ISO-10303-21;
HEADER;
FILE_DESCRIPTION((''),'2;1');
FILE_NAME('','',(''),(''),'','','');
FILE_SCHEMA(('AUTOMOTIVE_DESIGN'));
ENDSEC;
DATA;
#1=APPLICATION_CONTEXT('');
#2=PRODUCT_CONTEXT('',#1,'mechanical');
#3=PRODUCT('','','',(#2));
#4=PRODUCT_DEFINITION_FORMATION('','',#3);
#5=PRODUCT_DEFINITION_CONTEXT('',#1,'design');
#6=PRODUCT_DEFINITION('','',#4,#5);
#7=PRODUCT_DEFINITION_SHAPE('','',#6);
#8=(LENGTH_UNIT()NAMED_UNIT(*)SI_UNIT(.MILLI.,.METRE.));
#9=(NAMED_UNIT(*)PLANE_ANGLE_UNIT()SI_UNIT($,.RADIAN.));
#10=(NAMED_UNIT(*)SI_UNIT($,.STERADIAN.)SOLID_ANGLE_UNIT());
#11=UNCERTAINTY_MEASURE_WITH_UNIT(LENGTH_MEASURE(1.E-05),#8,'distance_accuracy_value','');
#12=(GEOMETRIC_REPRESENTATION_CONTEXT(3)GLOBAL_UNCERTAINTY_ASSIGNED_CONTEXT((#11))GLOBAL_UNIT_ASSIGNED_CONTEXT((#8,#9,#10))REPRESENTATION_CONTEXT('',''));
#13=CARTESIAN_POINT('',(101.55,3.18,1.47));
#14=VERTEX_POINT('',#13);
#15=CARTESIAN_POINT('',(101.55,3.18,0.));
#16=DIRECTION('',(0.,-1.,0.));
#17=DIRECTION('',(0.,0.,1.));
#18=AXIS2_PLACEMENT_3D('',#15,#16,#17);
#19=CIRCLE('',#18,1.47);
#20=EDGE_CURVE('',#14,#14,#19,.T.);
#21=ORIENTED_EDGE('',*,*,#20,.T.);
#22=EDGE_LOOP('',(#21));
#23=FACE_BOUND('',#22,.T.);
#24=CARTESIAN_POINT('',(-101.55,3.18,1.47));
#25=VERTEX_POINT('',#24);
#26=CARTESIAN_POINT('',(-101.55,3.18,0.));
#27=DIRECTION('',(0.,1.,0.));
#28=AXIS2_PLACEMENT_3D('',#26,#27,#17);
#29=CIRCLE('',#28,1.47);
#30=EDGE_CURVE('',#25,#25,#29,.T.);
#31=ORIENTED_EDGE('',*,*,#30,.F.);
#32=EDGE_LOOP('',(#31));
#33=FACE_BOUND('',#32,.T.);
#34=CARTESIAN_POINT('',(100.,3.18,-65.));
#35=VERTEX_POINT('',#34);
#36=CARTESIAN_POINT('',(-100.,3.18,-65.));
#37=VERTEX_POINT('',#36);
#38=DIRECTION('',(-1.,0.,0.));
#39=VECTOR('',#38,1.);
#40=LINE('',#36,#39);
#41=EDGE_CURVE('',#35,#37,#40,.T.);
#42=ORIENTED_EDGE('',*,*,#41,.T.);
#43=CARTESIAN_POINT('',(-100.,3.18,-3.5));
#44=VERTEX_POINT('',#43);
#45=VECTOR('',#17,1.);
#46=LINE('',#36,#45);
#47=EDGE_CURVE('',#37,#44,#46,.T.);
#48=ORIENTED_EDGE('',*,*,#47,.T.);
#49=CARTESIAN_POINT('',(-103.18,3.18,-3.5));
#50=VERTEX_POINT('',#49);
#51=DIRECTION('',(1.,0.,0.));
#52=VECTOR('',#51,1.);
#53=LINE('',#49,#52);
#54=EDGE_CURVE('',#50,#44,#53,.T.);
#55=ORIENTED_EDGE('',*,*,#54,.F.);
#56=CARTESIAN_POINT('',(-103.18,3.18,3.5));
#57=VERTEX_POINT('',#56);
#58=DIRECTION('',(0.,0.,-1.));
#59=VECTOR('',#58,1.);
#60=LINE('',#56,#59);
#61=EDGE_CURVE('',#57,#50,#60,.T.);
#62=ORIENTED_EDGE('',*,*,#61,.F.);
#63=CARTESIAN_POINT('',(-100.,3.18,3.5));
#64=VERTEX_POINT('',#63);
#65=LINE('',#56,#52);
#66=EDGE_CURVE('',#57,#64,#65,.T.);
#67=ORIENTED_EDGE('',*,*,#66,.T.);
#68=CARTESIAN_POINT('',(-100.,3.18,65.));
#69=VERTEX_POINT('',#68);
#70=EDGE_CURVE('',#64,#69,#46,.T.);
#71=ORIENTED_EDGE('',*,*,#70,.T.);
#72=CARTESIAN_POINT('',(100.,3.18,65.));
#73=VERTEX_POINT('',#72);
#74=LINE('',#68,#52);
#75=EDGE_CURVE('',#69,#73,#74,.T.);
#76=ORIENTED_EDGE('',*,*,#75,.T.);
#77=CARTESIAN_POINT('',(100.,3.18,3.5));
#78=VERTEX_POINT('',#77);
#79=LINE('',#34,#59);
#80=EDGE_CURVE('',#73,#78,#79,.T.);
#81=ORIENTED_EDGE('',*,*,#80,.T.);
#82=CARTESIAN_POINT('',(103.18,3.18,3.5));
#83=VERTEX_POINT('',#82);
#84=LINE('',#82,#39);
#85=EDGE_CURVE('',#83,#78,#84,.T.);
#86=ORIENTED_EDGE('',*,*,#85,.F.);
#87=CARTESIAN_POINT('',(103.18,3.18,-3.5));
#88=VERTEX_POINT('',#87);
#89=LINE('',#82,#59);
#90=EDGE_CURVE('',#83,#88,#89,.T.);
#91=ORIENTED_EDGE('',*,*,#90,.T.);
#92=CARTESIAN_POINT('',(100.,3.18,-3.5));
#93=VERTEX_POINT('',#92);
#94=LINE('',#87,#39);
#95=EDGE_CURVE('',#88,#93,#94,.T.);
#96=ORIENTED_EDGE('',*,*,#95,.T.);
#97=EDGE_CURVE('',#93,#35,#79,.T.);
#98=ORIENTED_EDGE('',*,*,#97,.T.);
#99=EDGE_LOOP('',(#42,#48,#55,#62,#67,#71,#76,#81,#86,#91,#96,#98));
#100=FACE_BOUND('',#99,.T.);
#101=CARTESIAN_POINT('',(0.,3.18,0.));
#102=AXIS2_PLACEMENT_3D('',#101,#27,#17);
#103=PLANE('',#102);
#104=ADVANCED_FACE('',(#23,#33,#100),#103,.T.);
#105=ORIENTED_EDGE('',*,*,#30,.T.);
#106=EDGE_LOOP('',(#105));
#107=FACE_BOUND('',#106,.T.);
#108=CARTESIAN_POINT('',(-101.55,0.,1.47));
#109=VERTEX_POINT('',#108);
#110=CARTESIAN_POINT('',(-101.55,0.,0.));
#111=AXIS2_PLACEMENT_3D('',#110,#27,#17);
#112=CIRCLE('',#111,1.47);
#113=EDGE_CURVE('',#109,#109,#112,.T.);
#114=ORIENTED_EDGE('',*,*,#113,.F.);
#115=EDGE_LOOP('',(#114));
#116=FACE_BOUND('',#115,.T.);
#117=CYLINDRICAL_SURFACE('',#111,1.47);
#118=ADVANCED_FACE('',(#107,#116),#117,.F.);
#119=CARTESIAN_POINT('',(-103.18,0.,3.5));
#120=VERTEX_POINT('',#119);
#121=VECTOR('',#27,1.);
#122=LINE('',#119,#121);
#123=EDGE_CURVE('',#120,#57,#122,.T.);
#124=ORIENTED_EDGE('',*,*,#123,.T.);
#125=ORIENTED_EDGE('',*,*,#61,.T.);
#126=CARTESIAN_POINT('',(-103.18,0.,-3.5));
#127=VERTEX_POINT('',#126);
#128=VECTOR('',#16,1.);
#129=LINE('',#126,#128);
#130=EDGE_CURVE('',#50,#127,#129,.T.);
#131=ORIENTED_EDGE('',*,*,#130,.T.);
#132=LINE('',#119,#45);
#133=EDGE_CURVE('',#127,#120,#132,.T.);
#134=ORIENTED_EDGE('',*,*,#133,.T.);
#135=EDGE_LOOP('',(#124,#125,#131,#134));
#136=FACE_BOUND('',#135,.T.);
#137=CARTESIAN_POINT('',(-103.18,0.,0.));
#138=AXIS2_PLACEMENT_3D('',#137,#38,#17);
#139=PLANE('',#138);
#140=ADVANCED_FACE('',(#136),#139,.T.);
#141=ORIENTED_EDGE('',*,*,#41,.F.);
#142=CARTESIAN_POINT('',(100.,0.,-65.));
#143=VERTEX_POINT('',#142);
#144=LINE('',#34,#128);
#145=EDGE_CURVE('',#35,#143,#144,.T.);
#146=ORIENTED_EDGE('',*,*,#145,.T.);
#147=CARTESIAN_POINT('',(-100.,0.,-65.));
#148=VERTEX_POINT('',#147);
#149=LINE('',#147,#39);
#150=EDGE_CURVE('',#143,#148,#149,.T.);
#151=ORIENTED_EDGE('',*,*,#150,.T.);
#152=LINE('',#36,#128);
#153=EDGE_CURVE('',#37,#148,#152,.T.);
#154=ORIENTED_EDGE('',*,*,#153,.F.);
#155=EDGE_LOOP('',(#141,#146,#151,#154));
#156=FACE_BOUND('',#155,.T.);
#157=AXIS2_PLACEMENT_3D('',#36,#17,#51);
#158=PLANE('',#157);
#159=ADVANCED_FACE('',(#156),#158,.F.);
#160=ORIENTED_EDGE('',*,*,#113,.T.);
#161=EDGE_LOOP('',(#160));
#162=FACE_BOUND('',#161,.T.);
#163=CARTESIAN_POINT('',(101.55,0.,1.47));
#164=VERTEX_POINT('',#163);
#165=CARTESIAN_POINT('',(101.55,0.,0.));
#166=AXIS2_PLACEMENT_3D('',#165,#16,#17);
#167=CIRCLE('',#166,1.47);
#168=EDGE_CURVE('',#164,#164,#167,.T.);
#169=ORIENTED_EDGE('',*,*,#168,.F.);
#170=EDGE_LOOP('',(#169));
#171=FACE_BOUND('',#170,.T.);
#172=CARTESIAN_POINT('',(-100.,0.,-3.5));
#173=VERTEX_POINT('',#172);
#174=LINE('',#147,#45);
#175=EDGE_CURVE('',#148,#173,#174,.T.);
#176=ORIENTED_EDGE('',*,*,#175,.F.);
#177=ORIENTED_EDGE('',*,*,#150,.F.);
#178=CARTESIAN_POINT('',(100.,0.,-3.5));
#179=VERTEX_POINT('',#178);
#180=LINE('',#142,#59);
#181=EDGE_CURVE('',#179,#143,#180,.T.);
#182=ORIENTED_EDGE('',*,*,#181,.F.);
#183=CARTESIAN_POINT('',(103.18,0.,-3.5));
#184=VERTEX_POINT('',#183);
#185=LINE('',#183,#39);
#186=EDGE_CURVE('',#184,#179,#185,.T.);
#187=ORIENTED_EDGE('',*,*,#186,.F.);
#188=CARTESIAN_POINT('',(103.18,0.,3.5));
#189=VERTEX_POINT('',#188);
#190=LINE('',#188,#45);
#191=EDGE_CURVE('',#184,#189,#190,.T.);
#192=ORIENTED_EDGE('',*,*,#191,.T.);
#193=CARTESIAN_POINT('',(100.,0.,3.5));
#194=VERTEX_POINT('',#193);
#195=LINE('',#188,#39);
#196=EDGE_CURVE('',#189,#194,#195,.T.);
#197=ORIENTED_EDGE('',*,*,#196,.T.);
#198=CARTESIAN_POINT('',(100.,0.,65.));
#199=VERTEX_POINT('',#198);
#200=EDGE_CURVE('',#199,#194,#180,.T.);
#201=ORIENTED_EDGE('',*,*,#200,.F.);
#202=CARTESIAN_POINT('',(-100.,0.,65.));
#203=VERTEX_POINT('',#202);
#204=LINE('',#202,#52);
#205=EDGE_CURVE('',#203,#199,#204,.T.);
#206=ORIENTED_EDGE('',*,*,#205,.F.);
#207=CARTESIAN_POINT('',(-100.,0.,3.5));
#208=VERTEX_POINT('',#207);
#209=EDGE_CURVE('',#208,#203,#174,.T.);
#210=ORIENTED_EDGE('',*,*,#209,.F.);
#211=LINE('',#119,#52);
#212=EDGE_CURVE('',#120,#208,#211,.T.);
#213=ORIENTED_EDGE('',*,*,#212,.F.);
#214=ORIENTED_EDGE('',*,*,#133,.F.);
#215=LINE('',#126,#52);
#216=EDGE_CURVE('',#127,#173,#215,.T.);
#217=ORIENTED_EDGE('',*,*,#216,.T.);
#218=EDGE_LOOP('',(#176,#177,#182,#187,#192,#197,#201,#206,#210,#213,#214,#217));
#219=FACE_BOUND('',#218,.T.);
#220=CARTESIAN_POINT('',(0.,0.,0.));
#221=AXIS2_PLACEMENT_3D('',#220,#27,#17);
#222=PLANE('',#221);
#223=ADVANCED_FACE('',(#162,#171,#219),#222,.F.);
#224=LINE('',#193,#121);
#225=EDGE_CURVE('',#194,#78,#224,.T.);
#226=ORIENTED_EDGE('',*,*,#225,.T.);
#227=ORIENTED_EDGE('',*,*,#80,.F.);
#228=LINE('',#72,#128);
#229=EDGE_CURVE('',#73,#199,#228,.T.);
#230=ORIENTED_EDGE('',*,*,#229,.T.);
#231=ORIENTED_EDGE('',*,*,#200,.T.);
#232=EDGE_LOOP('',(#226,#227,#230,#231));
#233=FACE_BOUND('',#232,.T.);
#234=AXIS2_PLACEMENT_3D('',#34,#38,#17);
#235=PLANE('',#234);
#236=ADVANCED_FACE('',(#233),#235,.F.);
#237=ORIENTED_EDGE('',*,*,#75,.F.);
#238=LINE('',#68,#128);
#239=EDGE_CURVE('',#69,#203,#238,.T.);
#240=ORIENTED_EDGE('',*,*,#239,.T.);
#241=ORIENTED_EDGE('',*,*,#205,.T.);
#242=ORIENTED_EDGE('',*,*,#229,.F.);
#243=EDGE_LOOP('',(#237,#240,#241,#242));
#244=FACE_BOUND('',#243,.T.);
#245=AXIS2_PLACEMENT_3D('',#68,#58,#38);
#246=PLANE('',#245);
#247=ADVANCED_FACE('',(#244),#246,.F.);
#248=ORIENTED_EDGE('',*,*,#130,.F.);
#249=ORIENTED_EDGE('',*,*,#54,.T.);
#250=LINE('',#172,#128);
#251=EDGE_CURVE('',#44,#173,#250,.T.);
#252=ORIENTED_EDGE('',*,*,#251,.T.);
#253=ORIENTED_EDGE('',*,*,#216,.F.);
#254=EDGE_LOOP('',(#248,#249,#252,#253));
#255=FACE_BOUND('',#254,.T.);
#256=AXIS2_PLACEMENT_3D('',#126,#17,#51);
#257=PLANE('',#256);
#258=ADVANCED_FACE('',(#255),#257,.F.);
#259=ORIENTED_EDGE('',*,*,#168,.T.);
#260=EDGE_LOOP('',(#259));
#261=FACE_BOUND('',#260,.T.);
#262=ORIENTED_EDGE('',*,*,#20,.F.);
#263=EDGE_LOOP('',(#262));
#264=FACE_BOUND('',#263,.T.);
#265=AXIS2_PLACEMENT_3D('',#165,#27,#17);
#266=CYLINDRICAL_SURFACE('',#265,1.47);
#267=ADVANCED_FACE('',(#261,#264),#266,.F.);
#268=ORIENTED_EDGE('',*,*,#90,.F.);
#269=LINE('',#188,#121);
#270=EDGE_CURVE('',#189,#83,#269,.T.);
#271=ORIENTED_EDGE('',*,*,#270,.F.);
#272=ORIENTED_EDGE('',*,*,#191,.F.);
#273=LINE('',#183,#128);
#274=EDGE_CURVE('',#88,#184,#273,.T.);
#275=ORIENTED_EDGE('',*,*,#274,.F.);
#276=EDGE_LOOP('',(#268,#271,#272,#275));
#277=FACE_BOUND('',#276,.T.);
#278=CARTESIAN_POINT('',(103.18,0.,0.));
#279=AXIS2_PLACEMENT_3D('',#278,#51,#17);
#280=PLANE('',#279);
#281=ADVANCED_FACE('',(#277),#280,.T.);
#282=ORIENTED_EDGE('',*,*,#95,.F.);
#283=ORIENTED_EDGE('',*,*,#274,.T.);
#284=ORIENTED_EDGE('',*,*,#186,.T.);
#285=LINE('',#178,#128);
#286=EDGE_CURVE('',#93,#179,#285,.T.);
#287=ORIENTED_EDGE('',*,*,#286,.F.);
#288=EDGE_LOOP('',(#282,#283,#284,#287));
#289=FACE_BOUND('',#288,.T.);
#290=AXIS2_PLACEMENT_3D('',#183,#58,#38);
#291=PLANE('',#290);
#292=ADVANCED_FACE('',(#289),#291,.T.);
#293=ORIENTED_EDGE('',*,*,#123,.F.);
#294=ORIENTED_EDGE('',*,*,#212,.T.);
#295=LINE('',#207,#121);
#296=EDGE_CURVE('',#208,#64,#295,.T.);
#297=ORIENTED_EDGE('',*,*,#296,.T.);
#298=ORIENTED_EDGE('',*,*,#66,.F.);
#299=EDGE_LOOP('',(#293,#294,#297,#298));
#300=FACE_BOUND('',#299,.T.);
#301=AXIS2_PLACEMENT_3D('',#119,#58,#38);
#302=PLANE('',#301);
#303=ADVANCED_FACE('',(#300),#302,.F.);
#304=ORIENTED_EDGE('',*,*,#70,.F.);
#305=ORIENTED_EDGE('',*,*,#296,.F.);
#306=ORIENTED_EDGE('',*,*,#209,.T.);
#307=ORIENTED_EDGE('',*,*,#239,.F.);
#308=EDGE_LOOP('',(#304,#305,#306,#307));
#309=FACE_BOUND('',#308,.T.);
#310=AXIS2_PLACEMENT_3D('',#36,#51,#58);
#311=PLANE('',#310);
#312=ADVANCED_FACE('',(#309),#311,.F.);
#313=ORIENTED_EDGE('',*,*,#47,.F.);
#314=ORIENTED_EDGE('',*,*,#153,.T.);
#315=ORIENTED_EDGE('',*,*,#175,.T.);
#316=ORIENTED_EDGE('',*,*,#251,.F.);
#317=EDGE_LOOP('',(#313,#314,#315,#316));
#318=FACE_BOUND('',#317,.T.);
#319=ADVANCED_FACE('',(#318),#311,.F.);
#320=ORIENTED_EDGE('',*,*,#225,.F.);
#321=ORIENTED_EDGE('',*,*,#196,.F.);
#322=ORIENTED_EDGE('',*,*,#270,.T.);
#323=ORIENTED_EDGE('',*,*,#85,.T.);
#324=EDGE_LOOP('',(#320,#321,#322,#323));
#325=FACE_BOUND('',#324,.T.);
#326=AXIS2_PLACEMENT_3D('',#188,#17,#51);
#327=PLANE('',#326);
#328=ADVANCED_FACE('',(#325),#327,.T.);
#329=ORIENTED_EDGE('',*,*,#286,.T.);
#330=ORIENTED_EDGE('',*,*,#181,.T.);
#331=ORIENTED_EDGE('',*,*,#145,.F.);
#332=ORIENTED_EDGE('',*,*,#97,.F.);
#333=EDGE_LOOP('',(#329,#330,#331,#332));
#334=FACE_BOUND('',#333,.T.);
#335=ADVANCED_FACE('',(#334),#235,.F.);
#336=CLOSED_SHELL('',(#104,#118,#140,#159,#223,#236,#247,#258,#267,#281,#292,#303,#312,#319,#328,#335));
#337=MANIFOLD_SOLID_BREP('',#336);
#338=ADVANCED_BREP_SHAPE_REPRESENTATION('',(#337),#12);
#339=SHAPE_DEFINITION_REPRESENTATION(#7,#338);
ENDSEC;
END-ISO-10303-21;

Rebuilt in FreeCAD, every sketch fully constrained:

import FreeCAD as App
import Part
import Sketcher

V = App.Vector
Q = App.Units.Quantity


def add_polygon(sketch, points):
    """Adds a closed chain of lines whose ends are joined by coincident constraints."""
    first, n = sketch.GeometryCount, len(points)
    for a, b in zip(points, points[1:] + points[:1]):
        sketch.addGeometry(Part.LineSegment(App.Vector(*a, 0), App.Vector(*b, 0)), False)
    for i in range(n):
        sketch.addConstraint(Sketcher.Constraint("Coincident", first + i, 2, first + (i + 1) % n, 1))

doc = App.newDocument("Part")
body = doc.addObject("PartDesign::Body", "Body")

# Sketch on XZ plane
sketch1 = body.newObject("Sketcher::SketchObject", "Sketch")
sketch1.AttachmentSupport = (doc.getObject("XZ_Plane"), [""])
sketch1.MapMode = "FlatFace"
add_polygon(sketch1, [(-100, -65), (-100, 65), (100, 65), (100, -65)])  # lines 0-3
sketch1.addConstraint(Sketcher.Constraint("Vertical", 0))
sketch1.addConstraint(Sketcher.Constraint("Horizontal", 1))
sketch1.addConstraint(Sketcher.Constraint("Vertical", 2))
sketch1.addConstraint(Sketcher.Constraint("Horizontal", 3))
sketch1.addConstraint(Sketcher.Constraint("Symmetric", 0, 2, 2, 2, -1, 1))
sketch1.addConstraint(Sketcher.Constraint("DistanceX", 1, 1, 1, 2, Q("200 mm")))
sketch1.addConstraint(Sketcher.Constraint("DistanceY", 0, 1, 0, 2, Q("130 mm")))
pad1 = body.newObject("PartDesign::Pad", "Pad")
pad1.Profile = sketch1
pad1.Length = 3.18
pad1.Reversed = True

# Sketch on YZ plane
sketch2 = body.newObject("Sketcher::SketchObject", "Sketch001")
sketch2.AttachmentSupport = (doc.getObject("YZ_Plane"), [""])
sketch2.MapMode = "FlatFace"
sketch2.AttachmentOffset = App.Placement(V(0, 0, -100), App.Rotation())
add_polygon(sketch2, [(3.18, -3.5), (0, -3.5), (0, 3.5), (3.18, 3.5)])  # lines 0-3
sketch2.addConstraint(Sketcher.Constraint("Horizontal", 0))
sketch2.addConstraint(Sketcher.Constraint("Vertical", 1))
sketch2.addConstraint(Sketcher.Constraint("Horizontal", 2))
sketch2.addConstraint(Sketcher.Constraint("Vertical", 3))
sketch2.addConstraint(Sketcher.Constraint("Symmetric", 0, 2, 1, 2, -1, 1))
sketch2.addConstraint(Sketcher.Constraint("DistanceY", 1, 1, 1, 2, Q("7 mm")))
sketch2.addConstraint(Sketcher.Constraint("DistanceX", 0, 2, 0, 1, Q("3.18 mm")))
pad2 = body.newObject("PartDesign::Pad", "Pad001")
pad2.Profile = sketch2
pad2.Length = 3.18
pad2.Reversed = True

# Sketch on XZ plane
sketch3 = body.newObject("Sketcher::SketchObject", "Sketch002")
sketch3.AttachmentSupport = (doc.getObject("XZ_Plane"), [""])
sketch3.MapMode = "FlatFace"
sketch3.AttachmentOffset = App.Placement(V(0, 0, -3.18), App.Rotation())
sketch3.addGeometry(Part.Circle(V(-101.55, 0, 0), V(0, 0, 1), 1.47), False)
sketch3.addConstraint(Sketcher.Constraint("PointOnObject", 0, 3, -1))
sketch3.addConstraint(Sketcher.Constraint("Diameter", 0, Q("2.94 mm")))
sketch3.addConstraint(Sketcher.Constraint("DistanceX", 0, 3, -1, 1, Q("101.55 mm")))
pocket1 = body.newObject("PartDesign::Pocket", "Pocket")
pocket1.Profile = sketch3
pocket1.Length = 3.18
pocket1.Reversed = True
doc.recompute()

mirrored = body.newObject("PartDesign::Mirrored", "Mirrored")
mirrored.Originals = [pad2, pocket1]
mirrored.MirrorPlane = (doc.getObject("YZ_Plane"), [""])
body.Tip = mirrored

doc.recompute()
